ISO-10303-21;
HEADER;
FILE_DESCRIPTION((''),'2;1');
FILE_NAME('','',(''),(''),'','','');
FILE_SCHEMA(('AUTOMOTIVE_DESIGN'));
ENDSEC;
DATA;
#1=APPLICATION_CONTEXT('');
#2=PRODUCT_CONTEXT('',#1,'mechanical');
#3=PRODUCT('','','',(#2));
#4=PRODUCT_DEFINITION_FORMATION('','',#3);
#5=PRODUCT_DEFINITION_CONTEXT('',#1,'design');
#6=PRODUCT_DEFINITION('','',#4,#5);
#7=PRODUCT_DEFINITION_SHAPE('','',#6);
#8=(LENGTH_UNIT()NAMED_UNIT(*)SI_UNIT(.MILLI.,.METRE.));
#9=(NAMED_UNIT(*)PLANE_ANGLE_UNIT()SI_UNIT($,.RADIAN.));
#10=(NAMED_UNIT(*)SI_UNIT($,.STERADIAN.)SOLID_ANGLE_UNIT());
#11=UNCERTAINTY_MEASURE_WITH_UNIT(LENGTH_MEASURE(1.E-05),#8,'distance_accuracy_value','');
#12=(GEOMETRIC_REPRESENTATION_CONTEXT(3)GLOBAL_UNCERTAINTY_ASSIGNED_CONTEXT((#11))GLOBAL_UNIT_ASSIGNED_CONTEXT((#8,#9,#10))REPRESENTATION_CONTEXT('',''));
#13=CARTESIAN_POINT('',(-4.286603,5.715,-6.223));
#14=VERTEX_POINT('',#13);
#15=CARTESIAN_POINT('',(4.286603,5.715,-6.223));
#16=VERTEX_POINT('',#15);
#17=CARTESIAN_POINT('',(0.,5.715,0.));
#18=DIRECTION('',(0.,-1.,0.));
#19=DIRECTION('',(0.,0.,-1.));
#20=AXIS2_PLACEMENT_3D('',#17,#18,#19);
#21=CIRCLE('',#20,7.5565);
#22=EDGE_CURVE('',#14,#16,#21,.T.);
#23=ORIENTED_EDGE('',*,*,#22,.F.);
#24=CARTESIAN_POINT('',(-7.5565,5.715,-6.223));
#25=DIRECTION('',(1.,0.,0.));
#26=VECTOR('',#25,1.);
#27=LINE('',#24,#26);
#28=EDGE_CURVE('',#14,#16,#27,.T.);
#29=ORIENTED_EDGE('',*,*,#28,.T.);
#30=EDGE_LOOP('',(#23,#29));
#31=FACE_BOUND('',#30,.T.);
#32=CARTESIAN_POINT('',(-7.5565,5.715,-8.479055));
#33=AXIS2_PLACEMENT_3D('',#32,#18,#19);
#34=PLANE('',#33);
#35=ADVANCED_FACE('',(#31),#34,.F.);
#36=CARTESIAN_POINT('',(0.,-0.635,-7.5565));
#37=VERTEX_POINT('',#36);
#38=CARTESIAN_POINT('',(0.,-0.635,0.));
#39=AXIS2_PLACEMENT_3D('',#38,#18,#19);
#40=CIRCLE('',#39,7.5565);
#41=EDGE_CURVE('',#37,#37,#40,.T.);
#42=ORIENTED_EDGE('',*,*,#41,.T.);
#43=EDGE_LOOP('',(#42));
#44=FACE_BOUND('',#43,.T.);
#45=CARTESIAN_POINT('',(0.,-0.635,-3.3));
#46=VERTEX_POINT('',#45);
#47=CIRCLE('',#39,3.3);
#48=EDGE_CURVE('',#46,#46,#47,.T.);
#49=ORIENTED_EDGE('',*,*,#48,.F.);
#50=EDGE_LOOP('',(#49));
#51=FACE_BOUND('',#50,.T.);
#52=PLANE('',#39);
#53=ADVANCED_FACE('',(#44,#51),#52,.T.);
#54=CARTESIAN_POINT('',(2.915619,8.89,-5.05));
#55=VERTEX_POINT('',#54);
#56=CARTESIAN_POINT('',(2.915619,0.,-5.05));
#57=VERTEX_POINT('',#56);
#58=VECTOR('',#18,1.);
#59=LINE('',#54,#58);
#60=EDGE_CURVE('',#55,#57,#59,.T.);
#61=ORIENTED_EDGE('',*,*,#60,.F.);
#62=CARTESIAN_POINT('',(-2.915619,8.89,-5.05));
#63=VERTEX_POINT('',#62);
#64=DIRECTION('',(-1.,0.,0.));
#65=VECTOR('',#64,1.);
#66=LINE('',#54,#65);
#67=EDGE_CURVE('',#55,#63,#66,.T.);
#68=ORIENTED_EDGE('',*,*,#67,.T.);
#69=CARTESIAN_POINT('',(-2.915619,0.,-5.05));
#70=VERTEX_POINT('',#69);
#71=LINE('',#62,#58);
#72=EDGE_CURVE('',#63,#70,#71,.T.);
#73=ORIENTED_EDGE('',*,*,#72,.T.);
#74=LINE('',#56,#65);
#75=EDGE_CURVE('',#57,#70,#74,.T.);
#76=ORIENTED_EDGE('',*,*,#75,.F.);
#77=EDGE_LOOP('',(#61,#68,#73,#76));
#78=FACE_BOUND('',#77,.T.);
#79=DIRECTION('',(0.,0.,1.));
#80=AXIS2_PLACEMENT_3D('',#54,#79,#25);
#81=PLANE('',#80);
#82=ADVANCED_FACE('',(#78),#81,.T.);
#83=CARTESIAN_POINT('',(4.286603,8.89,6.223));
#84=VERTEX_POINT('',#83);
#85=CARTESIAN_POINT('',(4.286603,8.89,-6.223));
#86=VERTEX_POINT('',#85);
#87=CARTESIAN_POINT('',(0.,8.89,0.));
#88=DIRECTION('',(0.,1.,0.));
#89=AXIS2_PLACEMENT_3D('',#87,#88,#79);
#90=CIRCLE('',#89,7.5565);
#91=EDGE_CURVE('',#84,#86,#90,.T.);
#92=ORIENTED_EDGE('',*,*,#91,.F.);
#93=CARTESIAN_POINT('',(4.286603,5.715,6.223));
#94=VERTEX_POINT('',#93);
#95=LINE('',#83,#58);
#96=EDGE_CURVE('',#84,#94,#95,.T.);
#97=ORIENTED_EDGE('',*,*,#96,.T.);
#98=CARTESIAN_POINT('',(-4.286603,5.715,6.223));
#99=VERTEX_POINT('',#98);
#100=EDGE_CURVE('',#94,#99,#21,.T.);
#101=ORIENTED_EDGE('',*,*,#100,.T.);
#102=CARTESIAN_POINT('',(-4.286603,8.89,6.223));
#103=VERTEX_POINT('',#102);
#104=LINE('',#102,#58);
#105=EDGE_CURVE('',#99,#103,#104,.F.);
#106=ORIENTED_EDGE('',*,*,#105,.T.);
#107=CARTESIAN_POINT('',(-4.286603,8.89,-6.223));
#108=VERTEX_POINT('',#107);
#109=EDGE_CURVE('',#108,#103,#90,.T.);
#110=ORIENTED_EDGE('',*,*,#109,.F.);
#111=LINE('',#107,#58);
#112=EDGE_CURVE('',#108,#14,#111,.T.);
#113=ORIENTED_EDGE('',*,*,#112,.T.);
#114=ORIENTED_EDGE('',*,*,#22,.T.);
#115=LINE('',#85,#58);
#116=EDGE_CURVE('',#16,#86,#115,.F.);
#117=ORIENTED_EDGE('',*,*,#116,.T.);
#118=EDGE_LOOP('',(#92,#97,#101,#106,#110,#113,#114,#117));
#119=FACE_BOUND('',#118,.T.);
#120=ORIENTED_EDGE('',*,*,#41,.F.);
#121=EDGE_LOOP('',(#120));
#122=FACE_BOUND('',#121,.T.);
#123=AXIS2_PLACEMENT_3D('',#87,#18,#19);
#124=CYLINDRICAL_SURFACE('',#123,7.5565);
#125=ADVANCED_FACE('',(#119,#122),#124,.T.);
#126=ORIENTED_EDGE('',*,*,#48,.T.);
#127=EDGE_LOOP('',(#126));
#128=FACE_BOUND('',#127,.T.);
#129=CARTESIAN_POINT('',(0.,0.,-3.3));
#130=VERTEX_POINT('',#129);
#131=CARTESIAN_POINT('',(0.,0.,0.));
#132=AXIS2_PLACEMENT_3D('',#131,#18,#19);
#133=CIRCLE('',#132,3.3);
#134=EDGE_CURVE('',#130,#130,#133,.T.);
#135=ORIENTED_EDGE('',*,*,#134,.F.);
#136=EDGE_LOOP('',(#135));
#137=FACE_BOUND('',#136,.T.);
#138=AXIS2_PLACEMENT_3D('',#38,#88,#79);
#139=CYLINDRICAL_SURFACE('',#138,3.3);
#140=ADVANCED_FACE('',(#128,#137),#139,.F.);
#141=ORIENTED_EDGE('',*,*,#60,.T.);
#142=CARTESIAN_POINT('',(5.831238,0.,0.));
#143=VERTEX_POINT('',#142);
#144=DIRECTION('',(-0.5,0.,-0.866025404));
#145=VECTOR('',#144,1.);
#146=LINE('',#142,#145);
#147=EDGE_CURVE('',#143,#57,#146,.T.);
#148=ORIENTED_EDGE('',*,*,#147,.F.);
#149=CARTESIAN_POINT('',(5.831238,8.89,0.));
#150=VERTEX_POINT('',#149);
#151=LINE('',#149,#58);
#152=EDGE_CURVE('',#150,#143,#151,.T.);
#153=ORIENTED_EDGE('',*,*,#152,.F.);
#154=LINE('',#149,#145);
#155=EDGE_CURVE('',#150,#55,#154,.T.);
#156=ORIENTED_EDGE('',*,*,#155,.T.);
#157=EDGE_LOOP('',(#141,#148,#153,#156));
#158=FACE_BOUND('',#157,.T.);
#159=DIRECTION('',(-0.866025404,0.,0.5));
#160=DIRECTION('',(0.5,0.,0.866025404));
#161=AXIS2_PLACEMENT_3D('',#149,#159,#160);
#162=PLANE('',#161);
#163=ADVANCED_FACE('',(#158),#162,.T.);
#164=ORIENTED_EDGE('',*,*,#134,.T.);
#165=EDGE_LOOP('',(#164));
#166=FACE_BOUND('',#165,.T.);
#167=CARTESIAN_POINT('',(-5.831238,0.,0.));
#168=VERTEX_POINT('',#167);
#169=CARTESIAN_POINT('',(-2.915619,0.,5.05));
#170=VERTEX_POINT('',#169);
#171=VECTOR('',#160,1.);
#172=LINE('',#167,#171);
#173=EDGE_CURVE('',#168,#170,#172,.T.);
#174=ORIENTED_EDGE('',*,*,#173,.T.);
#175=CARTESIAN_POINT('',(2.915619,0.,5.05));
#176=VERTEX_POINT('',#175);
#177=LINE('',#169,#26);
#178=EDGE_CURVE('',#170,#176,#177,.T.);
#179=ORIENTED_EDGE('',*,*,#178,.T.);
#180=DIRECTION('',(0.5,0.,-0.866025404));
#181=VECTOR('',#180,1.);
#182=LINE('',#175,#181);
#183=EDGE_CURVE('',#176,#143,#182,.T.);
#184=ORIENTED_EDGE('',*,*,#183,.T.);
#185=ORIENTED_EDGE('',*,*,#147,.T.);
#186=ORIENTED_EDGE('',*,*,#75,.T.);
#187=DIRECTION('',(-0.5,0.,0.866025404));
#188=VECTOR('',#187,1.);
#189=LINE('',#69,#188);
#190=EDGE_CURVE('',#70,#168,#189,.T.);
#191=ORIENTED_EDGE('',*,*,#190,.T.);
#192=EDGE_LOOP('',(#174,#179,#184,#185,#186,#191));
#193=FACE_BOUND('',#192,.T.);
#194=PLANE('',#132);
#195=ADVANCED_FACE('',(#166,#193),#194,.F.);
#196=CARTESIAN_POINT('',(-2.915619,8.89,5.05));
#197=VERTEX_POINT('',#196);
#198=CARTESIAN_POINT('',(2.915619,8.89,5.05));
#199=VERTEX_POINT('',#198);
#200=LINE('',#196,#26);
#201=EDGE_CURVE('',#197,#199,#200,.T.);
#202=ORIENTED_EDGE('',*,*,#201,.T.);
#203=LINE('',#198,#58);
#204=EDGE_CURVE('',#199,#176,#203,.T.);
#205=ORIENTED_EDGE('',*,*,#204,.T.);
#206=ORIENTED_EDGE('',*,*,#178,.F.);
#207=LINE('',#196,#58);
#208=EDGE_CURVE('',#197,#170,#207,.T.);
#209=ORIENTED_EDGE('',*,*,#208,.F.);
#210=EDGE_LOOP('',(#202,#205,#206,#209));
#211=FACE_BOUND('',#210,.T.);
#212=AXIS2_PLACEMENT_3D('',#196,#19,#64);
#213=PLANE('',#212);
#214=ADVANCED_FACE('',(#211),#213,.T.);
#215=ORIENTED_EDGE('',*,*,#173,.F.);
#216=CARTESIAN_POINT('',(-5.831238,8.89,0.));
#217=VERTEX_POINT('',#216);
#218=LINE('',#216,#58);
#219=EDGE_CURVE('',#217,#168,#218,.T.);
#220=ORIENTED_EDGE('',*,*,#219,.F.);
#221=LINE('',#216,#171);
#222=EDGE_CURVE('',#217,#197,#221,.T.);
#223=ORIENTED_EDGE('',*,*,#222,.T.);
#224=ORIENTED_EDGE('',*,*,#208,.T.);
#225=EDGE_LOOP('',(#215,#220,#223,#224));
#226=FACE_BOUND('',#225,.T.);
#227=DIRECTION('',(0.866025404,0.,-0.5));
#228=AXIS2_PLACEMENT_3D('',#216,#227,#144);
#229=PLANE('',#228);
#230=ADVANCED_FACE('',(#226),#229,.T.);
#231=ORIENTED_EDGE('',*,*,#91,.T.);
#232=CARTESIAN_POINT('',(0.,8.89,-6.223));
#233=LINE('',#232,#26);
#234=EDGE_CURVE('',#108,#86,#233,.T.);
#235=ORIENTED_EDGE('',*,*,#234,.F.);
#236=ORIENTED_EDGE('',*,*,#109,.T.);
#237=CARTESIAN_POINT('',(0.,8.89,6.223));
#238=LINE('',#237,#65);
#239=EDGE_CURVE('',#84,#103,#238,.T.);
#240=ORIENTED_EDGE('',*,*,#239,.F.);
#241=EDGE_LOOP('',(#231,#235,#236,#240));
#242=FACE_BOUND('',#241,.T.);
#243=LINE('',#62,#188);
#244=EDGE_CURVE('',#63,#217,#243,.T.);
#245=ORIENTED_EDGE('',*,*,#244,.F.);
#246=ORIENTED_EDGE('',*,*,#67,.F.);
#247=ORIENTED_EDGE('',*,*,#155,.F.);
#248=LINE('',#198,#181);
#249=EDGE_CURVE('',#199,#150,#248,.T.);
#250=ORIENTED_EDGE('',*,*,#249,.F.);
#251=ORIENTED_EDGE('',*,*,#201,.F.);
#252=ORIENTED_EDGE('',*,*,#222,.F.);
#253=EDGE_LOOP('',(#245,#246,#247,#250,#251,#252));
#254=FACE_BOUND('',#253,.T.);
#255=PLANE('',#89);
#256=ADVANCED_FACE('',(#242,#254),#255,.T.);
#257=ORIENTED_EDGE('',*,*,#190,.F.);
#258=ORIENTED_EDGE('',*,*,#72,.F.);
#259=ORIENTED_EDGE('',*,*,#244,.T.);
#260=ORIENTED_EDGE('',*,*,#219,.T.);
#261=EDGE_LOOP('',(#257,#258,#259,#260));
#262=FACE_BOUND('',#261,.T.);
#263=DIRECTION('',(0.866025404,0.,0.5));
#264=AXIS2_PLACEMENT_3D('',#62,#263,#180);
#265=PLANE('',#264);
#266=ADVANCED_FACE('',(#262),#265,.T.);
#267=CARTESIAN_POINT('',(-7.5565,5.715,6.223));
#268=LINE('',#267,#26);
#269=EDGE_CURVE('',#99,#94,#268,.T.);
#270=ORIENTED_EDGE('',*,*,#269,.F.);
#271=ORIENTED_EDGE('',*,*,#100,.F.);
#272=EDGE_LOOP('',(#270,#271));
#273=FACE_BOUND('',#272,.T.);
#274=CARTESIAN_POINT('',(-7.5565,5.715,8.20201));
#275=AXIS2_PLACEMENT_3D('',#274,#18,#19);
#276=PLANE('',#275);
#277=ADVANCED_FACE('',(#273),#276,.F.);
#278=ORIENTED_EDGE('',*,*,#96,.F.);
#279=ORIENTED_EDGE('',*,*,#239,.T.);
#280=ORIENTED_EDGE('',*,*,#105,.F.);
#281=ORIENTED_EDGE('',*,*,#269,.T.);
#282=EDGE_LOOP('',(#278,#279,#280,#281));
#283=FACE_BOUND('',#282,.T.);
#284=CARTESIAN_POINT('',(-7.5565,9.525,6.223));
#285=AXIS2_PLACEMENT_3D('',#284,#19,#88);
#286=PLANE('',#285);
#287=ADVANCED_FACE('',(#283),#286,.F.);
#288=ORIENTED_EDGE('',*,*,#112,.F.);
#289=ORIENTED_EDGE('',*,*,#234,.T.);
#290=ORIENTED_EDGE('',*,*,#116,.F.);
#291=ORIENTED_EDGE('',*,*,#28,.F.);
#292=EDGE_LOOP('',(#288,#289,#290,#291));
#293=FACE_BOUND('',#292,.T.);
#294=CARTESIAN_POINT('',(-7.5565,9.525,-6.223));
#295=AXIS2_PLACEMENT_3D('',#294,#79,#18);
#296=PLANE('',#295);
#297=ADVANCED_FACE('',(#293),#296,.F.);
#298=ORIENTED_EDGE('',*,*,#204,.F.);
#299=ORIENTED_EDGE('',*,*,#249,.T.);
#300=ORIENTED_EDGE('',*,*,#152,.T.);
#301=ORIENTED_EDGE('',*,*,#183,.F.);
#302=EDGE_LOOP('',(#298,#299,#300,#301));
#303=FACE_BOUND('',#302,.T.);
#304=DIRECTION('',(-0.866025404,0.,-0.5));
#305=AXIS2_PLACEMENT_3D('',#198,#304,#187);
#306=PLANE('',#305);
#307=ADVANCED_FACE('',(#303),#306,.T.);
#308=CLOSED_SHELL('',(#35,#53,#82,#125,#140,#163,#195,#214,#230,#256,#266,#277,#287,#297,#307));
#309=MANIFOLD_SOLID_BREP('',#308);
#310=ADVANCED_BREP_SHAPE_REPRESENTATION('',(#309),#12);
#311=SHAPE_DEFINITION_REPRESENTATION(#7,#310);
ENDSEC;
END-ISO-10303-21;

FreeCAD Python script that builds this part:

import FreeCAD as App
import Part
import Sketcher
Q = App.Units.Quantity


def add_polygon(sketch, points):
    """Adds a closed chain of lines whose ends are joined by coincident constraints."""
    first, n = sketch.GeometryCount, len(points)
    for a, b in zip(points, points[1:] + points[:1]):
        sketch.addGeometry(Part.LineSegment(App.Vector(*a, 0), App.Vector(*b, 0)), False)
    for i in range(n):
        sketch.addConstraint(Sketcher.Constraint("Coincident", first + i, 2, first + (i + 1) % n, 1))

doc = App.newDocument("Part")
params = doc.addObject("Spreadsheet::Sheet", "Params")
for row, (alias, value) in enumerate([
    ("sketch1_diameter", "0.595 in"),
    ("pad1_length", "0.35 in"),
    ("sketch2_diameter", "0.595 in"),
    ("pad2_length", "0.025 in"),
    ("sketch3_width", "0.15 in"),
], start=1):
    params.set(f"A{row}", alias)
    params.set(f"B{row}", "=" + value)
    params.setAlias(f"B{row}", alias)

body = doc.addObject("PartDesign::Body", "Body")

# Sketch on XZ plane
sketch1 = body.newObject("Sketcher::SketchObject", "Sketch")
sketch1.AttachmentSupport = (doc.getObject("XZ_Plane"), [""])
sketch1.MapMode = "FlatFace"
sketch1.addGeometry(Part.Circle(App.Vector(0, 0, 0), App.Vector(0, 0, 1), 8), False)  # 0
add_polygon(sketch1, [(-6, 0), (-3, -5), (3, -5), (6, 0), (3, 5), (-3, 5)])  # lines 1-6
sketch1.addConstraint(Sketcher.Constraint("Horizontal", 2))
sketch1.addConstraint(Sketcher.Constraint("Horizontal", 5))
sketch1.addConstraint(Sketcher.Constraint("Coincident", 0, 3, -1, 1))
sketch1.addConstraint(Sketcher.Constraint("Symmetric", 1, 2, 4, 2, -1, 1))
sketch1.addConstraint(Sketcher.Constraint("Symmetric", 3, 2, 6, 2, -1, 1))
sketch1.addConstraint(Sketcher.Constraint("PointOnObject", 3, 2, -1))
sketch1.addConstraint(Sketcher.Constraint("Parallel", 3, 6))
sketch1.addConstraint(Sketcher.Constraint("Vertical", 2, 2, 4, 2))
sketch1.addConstraint(Sketcher.Constraint("Diameter", 0, Q("0.595 in")))
sketch1.addConstraint(Sketcher.Constraint("Angle", 1, Q("-60 deg")))
sketch1.addConstraint(Sketcher.Constraint("DistanceY", 1, 2, -1, 1, 5.05))
sketch1.addConstraint(Sketcher.Constraint("DistanceX", 2, 1, 2, 2, 5.831238))
sketch1.setExpression("Constraints[14]", "Params.sketch1_diameter")
pad1 = body.newObject("PartDesign::Pad", "Pad")
pad1.Profile = sketch1
pad1.setExpression("Length", "Params.pad1_length")
pad1.Reversed = True

# Sketch on XZ plane
sketch2 = body.newObject("Sketcher::SketchObject", "Sketch001")
sketch2.AttachmentSupport = (doc.getObject("XZ_Plane"), [""])
sketch2.MapMode = "FlatFace"
sketch2.addGeometry(Part.Circle(App.Vector(0, 0, 0), App.Vector(0, 0, 1), 7.6), False)
sketch2.addGeometry(Part.Circle(App.Vector(0, 0, 0), App.Vector(0, 0, 1), 3.3), False)
sketch2.addConstraint(Sketcher.Constraint("Coincident", 0, 3, -1, 1))
sketch2.addConstraint(Sketcher.Constraint("Coincident", 1, 3, -1, 1))
sketch2.addConstraint(Sketcher.Constraint("Diameter", 0, Q("0.595 in")))
sketch2.addConstraint(Sketcher.Constraint("Diameter", 1, 6.6))
sketch2.setExpression("Constraints[2]", "Params.sketch2_diameter")
pad2 = body.newObject("PartDesign::Pad", "Pad001")
pad2.Profile = sketch2
pad2.setExpression("Length", "Params.pad2_length")

# Sketch on YZ plane
sketch3 = body.newObject("Sketcher::SketchObject", "Sketch002")
sketch3.AttachmentSupport = (doc.getObject("YZ_Plane"), [""])
sketch3.MapMode = "FlatFace"
add_polygon(sketch3, [(9.5, 8.2), (5.7, 8.2), (5.7, 6.2), (9.5, 6.2)])  # lines 0-3
add_polygon(sketch3, [(9.5, -6.2), (5.7, -6.2), (5.7, -8.5), (9.5, -8.5)])  # lines 4-7
sketch3.addConstraint(Sketcher.Constraint("Horizontal", 0))
sketch3.addConstraint(Sketcher.Constraint("Vertical", 1))
sketch3.addConstraint(Sketcher.Constraint("Horizontal", 2))
sketch3.addConstraint(Sketcher.Constraint("Vertical", 3))
sketch3.addConstraint(Sketcher.Constraint("Horizontal", 4))
sketch3.addConstraint(Sketcher.Constraint("Vertical", 5))
sketch3.addConstraint(Sketcher.Constraint("Horizontal", 6))
sketch3.addConstraint(Sketcher.Constraint("Vertical", 7))
sketch3.addConstraint(Sketcher.Constraint("Symmetric", 1, 2, 4, 2, -1))
sketch3.addConstraint(Sketcher.Constraint("Vertical", 3, 2, 6, 2))
sketch3.addConstraint(Sketcher.Constraint("DistanceX", 0, 2, 0, 1, Q("0.15 in")))
sketch3.addConstraint(Sketcher.Constraint("DistanceY", 4, 2, 1, 2, Q("0.49 in")))
sketch3.addConstraint(Sketcher.Constraint("DistanceX", -1, 1, 0, 2, Q("0.225 in")))
sketch3.addConstraint(Sketcher.Constraint("DistanceY", 1, 2, 1, 1, 1.97901))
sketch3.addConstraint(Sketcher.Constraint("DistanceY", 5, 2, 5, 1, 2.256055))
sketch3.setExpression("Constraints[18]", "Params.sketch3_width")
pocket1 = body.newObject("PartDesign::Pocket", "Pocket")
pocket1.Profile = sketch3
pocket1.Type = "ThroughAll"
pocket1.Midplane = True

doc.recompute()
